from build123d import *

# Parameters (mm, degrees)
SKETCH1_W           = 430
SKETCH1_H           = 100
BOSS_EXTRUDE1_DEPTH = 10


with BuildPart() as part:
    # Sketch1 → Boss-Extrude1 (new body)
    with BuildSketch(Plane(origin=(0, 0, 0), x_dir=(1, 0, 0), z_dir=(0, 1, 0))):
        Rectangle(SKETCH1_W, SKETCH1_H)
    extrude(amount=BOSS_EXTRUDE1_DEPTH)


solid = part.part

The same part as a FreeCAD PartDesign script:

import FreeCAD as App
import Part
import Sketcher
from FreeCAD import Vector

doc = App.newDocument("Part")
body = doc.addObject("PartDesign::Body", "Body")

# Sketch on XZ plane
sketch1 = body.newObject("Sketcher::SketchObject", "Sketch")
sketch1.AttachmentSupport = (doc.getObject("XZ_Plane"), [""])
sketch1.MapMode = "FlatFace"
sketch1.addGeometry(Part.LineSegment(Vector(-215, -50, 0), Vector(-215, 50, 0)), False)
sketch1.addGeometry(Part.LineSegment(Vector(-215, 50, 0), Vector(215, 50, 0)), False)
sketch1.addGeometry(Part.LineSegment(Vector(215, 50, 0), Vector(215, -50, 0)), False)
sketch1.addGeometry(Part.LineSegment(Vector(215, -50, 0), Vector(-215, -50, 0)), False)
sketch1.addConstraint(Sketcher.Constraint("Coincident", 0, 2, 1, 1))
sketch1.addConstraint(Sketcher.Constraint("Coincident", 1, 2, 2, 1))
sketch1.addConstraint(Sketcher.Constraint("Coincident", 2, 2, 3, 1))
sketch1.addConstraint(Sketcher.Constraint("Coincident", 3, 2, 0, 1))
sketch1.addConstraint(Sketcher.Constraint("Vertical", 0))
sketch1.addConstraint(Sketcher.Constraint("Horizontal", 1))
sketch1.addConstraint(Sketcher.Constraint("Vertical", 2))
sketch1.addConstraint(Sketcher.Constraint("Horizontal", 3))
sketch1.addConstraint(Sketcher.Constraint("Symmetric", 0, 2, 2, 2, -1, 1))
sketch1.addConstraint(Sketcher.Constraint("DistanceX", 1, 1, 1, 2, 430.0))
sketch1.addConstraint(Sketcher.Constraint("DistanceY", 0, 1, 0, 2, 100.0))
pad1 = body.newObject("PartDesign::Pad", "Pad")
pad1.Profile = sketch1
pad1.Length = 10
pad1.Reversed = True

doc.recompute()
